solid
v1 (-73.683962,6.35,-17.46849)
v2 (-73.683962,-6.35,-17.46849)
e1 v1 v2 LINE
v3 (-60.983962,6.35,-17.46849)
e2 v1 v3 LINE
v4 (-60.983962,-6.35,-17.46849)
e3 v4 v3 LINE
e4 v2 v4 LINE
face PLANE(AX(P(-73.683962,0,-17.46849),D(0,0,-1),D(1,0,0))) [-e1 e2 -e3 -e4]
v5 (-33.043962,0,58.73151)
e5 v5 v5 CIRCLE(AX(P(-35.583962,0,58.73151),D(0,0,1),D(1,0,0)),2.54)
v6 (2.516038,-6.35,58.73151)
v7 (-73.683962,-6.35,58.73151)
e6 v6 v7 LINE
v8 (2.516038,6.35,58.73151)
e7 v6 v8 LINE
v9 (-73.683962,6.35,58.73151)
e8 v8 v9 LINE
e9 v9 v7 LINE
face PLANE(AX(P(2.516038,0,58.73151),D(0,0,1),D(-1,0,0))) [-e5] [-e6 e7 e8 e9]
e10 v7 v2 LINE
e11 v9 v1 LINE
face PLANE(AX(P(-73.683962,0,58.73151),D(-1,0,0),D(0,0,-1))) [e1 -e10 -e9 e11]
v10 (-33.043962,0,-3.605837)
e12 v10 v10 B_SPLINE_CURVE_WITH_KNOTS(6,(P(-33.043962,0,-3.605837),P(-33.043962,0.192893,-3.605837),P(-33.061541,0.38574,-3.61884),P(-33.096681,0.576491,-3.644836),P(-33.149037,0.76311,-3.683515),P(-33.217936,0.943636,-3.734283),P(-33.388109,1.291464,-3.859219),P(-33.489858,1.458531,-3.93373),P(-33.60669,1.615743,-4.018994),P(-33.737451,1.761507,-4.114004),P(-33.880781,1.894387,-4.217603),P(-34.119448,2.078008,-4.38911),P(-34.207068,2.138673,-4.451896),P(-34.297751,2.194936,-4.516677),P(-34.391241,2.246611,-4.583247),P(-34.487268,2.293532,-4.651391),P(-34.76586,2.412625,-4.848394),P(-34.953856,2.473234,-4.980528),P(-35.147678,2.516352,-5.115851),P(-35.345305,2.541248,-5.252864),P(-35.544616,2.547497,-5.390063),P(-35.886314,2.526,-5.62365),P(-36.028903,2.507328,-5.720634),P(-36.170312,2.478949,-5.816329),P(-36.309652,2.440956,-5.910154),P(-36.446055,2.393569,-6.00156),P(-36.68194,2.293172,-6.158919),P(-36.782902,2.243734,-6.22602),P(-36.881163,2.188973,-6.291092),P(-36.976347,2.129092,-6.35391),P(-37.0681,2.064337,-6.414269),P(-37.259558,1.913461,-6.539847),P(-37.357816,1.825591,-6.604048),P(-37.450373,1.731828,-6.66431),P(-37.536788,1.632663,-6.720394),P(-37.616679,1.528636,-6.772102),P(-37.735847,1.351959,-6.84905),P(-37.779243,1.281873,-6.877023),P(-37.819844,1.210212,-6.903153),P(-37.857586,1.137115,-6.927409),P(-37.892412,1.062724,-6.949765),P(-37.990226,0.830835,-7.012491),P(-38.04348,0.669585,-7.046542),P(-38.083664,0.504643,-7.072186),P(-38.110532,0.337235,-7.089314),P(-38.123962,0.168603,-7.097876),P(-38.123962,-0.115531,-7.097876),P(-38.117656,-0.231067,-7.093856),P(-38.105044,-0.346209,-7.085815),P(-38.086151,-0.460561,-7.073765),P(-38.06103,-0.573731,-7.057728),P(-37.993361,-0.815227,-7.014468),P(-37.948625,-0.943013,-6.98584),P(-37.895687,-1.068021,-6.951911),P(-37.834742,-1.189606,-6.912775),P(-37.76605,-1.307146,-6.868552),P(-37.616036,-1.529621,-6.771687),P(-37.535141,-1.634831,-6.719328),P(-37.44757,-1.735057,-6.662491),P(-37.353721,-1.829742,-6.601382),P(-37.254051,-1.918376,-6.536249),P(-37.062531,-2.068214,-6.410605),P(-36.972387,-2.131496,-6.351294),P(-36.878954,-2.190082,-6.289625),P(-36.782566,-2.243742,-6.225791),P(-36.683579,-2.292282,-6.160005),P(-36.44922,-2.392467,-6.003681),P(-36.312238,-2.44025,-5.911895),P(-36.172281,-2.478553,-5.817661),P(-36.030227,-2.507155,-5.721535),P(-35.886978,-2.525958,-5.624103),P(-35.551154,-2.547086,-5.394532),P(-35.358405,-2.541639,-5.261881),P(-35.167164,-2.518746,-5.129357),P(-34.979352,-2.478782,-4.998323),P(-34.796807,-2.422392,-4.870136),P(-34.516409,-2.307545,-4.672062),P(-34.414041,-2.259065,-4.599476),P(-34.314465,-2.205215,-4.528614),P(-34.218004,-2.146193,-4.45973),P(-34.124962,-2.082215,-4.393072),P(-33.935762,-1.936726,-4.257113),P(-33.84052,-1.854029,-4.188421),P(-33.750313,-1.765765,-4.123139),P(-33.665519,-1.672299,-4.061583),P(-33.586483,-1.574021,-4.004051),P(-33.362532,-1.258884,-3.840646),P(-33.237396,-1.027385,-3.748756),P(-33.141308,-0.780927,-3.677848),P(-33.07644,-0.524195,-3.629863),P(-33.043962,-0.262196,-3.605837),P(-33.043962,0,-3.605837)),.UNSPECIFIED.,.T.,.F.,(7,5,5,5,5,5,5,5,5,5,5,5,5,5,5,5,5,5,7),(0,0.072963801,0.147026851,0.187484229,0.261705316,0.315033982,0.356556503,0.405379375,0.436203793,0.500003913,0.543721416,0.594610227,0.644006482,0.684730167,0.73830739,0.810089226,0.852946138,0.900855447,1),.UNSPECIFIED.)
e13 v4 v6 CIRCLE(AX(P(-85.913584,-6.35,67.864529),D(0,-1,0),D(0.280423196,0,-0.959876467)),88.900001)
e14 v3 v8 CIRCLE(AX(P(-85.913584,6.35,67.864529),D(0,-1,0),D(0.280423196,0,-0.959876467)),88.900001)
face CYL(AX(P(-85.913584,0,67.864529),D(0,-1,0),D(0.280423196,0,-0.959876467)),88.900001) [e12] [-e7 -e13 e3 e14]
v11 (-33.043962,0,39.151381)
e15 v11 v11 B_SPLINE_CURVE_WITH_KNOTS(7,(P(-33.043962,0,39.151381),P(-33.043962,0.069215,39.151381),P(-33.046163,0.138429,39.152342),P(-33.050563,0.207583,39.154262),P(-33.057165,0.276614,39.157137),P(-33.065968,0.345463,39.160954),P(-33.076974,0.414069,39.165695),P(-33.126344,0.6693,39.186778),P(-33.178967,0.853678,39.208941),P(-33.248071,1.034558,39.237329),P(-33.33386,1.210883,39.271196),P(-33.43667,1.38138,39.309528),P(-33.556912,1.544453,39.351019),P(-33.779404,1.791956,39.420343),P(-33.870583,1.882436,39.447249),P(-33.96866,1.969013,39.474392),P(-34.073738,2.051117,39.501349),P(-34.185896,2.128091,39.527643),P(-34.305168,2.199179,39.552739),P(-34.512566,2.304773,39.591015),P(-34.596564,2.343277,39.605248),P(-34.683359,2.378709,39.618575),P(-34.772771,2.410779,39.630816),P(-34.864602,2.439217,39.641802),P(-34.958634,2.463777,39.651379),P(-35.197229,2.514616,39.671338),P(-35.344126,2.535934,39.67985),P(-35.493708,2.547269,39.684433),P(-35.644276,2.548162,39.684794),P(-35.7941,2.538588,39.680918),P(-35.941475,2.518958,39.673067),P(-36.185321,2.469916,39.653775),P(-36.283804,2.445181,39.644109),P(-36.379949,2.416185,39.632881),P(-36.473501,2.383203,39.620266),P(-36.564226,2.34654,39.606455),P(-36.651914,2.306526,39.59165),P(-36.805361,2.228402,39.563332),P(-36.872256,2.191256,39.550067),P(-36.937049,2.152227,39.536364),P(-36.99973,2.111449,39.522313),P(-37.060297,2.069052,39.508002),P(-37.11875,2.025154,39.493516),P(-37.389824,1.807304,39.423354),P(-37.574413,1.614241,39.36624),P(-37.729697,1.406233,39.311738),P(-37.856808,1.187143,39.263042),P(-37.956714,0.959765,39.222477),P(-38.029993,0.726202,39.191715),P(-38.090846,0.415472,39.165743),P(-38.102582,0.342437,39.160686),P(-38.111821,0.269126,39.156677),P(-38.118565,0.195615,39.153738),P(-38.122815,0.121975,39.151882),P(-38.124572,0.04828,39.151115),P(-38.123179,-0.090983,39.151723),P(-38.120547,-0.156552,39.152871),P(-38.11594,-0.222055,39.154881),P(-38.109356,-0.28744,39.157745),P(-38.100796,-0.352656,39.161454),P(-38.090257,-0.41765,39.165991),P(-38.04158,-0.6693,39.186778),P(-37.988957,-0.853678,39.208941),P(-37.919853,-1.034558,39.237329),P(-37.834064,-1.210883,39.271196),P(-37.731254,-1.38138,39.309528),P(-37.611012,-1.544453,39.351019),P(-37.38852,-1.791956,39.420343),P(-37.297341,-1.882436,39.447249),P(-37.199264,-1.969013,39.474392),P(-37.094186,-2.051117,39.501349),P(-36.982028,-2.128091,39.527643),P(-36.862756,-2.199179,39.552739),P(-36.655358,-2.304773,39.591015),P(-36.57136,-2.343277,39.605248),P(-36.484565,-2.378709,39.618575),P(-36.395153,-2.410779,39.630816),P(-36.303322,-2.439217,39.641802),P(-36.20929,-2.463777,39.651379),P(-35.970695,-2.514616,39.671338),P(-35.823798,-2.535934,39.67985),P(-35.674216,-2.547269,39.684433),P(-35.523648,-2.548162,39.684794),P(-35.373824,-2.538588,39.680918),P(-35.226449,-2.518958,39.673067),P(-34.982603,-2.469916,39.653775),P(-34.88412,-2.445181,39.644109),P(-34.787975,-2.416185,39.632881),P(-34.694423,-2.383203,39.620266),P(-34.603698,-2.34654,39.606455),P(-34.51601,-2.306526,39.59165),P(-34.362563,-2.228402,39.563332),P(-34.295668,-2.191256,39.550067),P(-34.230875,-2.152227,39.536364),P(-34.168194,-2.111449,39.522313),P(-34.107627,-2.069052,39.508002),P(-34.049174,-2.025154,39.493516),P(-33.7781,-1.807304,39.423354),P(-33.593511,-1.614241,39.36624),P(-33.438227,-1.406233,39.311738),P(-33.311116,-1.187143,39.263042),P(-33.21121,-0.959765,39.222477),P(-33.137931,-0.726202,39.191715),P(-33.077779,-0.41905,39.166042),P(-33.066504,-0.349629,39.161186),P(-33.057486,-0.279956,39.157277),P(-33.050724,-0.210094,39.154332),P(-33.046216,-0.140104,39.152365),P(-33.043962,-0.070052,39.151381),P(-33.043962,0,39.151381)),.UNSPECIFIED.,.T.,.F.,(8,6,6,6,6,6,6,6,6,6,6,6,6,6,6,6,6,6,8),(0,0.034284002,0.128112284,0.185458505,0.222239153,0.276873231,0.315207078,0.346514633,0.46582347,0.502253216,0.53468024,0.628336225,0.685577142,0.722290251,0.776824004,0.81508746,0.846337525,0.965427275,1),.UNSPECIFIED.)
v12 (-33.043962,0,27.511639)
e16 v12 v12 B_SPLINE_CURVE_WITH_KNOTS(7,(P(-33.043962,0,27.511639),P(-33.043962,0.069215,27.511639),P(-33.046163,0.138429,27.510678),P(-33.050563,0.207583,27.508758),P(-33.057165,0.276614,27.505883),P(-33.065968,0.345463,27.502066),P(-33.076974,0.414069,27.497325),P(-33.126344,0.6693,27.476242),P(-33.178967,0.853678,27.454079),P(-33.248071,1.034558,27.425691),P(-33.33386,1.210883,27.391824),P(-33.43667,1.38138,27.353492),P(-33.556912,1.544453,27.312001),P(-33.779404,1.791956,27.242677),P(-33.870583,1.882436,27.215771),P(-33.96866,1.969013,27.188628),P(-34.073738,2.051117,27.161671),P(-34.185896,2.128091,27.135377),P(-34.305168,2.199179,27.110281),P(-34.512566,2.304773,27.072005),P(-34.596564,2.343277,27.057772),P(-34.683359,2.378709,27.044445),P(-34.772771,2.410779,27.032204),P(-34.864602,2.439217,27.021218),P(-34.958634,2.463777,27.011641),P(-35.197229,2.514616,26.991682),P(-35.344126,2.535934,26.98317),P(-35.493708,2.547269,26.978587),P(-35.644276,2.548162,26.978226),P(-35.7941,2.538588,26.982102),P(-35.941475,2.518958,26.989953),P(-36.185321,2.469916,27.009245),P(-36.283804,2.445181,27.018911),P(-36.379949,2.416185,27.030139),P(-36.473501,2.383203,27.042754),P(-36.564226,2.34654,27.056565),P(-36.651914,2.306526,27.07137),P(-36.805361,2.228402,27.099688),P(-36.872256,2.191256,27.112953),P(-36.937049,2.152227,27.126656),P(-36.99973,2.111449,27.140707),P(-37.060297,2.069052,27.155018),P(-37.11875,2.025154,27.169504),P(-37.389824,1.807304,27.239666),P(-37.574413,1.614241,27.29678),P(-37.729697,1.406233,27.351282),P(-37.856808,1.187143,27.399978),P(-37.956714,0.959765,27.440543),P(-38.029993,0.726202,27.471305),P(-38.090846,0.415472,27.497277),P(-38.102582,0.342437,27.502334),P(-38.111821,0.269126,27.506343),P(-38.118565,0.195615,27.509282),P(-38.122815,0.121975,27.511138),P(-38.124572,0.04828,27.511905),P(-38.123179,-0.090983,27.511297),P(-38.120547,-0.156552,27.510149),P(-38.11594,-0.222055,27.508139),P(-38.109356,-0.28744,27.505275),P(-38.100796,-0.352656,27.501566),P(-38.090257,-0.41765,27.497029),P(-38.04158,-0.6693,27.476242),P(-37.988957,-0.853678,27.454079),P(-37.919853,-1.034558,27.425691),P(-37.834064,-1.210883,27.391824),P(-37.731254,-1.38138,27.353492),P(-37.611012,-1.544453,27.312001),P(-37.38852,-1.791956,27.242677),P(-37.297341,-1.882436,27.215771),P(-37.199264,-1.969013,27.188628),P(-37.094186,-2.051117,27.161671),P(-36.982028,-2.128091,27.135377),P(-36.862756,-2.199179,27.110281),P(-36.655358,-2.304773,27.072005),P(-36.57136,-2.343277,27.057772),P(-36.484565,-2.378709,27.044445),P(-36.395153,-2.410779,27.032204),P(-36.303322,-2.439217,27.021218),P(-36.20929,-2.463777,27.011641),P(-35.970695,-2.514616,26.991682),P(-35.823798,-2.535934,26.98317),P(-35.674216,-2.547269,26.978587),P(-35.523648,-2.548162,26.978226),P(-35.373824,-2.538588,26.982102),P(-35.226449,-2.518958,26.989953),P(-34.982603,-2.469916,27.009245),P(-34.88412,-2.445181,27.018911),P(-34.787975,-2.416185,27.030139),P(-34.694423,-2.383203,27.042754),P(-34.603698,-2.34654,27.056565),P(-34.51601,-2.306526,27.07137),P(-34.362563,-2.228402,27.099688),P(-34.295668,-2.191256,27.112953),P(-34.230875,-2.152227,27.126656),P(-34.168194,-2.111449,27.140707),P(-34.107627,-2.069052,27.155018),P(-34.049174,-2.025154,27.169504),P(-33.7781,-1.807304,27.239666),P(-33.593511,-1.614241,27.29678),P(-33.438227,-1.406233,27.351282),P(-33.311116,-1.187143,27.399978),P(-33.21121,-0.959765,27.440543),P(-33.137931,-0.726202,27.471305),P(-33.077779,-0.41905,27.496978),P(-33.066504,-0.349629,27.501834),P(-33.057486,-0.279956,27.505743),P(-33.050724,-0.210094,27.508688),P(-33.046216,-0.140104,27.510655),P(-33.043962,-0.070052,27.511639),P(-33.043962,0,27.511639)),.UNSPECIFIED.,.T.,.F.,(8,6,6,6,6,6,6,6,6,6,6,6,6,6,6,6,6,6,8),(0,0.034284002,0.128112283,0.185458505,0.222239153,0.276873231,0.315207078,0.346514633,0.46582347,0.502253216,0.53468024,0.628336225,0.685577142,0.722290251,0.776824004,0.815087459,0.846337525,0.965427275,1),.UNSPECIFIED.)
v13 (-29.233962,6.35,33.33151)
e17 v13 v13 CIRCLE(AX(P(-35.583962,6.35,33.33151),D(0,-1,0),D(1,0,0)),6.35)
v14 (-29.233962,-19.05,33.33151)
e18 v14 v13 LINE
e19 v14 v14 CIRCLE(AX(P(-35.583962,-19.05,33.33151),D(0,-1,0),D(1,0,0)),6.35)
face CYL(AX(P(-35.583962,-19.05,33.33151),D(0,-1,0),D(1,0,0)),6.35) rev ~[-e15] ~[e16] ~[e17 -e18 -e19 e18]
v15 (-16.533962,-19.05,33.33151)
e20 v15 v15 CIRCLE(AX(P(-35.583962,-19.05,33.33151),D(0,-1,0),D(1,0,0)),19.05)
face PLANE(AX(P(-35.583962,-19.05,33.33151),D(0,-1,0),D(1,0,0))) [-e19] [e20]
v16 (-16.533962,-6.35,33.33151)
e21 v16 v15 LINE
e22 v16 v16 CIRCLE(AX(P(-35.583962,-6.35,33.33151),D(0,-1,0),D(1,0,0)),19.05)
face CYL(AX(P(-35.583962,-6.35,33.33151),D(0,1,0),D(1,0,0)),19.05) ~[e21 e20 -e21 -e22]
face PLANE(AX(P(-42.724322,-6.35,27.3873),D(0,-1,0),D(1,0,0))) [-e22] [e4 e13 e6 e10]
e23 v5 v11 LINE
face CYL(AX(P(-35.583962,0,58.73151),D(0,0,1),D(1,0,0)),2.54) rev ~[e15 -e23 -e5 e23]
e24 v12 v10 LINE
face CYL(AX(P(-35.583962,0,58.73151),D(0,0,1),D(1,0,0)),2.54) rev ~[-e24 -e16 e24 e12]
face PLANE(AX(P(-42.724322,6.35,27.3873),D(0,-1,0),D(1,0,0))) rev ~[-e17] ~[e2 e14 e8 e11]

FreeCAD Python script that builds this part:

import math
import FreeCAD as App
import Part
import Sketcher

V = App.Vector
Q = App.Units.Quantity

doc = App.newDocument("Part")
body = doc.addObject("PartDesign::Body", "Body")

# Sketch on XZ plane
sketch1 = doc.addObject("Sketcher::SketchObject", "Sketch")
body.addObject(sketch1)
sketch1.AttachmentSupport = (doc.XZ_Plane, [""])
sketch1.MapMode = "FlatFace"
sketch1.addGeometry([
    Part.LineSegment(V(3, 59, 0), V(-74, 59, 0)),
    Part.LineSegment(V(-74, 59, 0), V(-74, -17, 0)),
    Part.LineSegment(V(-74, -17, 0), V(-61, -17, 0)),
    Part.ArcOfCircle(Part.Circle(V(-86, 68, 0), V(0, 0, 1), 89), math.radians(-74), math.radians(-6)),
], False)
sketch1.addConstraint([
    Sketcher.Constraint("Coincident", 0, 2, 1, 1),
    Sketcher.Constraint("Coincident", 1, 2, 2, 1),
    Sketcher.Constraint("Coincident", 2, 2, 3, 1),
    Sketcher.Constraint("Coincident", 3, 2, 0, 1),
    Sketcher.Constraint("Horizontal", 0),
    Sketcher.Constraint("Vertical", 1),
    Sketcher.Constraint("Horizontal", 2),
    Sketcher.Constraint("Equal", 0, 1),
    Sketcher.Constraint("Radius", 3, Q("3.5 in")),
    Sketcher.Constraint("DistanceX", 0, 2, 0, 1, Q("3 in")),
    Sketcher.Constraint("DistanceX", 2, 1, 2, 2, Q("0.5 in")),
    Sketcher.Constraint("DistanceY", -1, 1, 3, 3, 67.864529),
    Sketcher.Constraint("DistanceX", 0, 2, -1, 1, 73.683962),
])
pad1 = doc.addObject("PartDesign::Pad", "Pad")
body.addObject(pad1)
pad1.Profile = sketch1
pad1.Length = Q("0.5 in")
pad1.Midplane = True

# Sketch on XZ plane
sketch2 = doc.addObject("Sketcher::SketchObject", "Sketch001")
body.addObject(sketch2)
sketch2.AttachmentSupport = (doc.XZ_Plane, [""])
sketch2.MapMode = "FlatFace"
sketch2.AttachmentOffset = App.Placement(V(0, 0, 0.25 * 25.4), App.Rotation())
sketch2.addGeometry(Part.Circle(V(-36, 33, 0), V(0, 0, 1), 19), False)
sketch2.addConstraint([
    Sketcher.Constraint("Diameter", 0, Q("1.5 in")),
    Sketcher.Constraint("DistanceY", -1, 1, 0, 3, 33.33151),
    Sketcher.Constraint("DistanceX", 0, 3, -1, 1, 35.583962),
])
pad2 = doc.addObject("PartDesign::Pad", "Pad001")
body.addObject(pad2)
pad2.Profile = sketch2
pad2.Length = Q("0.5 in")

# Sketch on XZ plane
sketch3 = doc.addObject("Sketcher::SketchObject", "Sketch002")
body.addObject(sketch3)
sketch3.AttachmentSupport = (doc.XZ_Plane, [""])
sketch3.MapMode = "FlatFace"
sketch3.AttachmentOffset = App.Placement(V(0, 0, 0.75 * 25.4), App.Rotation())
sketch3.addGeometry(Part.Circle(V(-36, 33, 0), V(0, 0, 1), 6), False)
sketch3.addConstraint([
    Sketcher.Constraint("Diameter", 0, Q("0.5 in")),
    Sketcher.Constraint("DistanceY", -1, 1, 0, 3, 33.33151),
    Sketcher.Constraint("DistanceX", 0, 3, -1, 1, 35.583962),
])
pocket1 = doc.addObject("PartDesign::Pocket", "Pocket")
body.addObject(pocket1)
pocket1.Profile = sketch3
pocket1.Length = Q("2.93 in")

# Sketch on XY plane
sketch4 = doc.addObject("Sketcher::SketchObject", "Sketch003")
body.addObject(sketch4)
sketch4.AttachmentSupport = (doc.XY_Plane, [""])
sketch4.MapMode = "FlatFace"
sketch4.AttachmentOffset = App.Placement(V(0, 0, 58.73151), App.Rotation())
sketch4.addGeometry(Part.Circle(V(-35.6, 0, 0), V(0, 0, 1), 2.5), False)
sketch4.addConstraint([
    Sketcher.Constraint("PointOnObject", 0, 3, -1),
    Sketcher.Constraint("Diameter", 0, Q("0.2 in")),
    Sketcher.Constraint("DistanceX", 0, 3, -1, 1, 35.583962),
])
pocket2 = doc.addObject("PartDesign::Pocket", "Pocket001")
body.addObject(pocket2)
pocket2.Profile = sketch4
pocket2.Type = "ThroughAll"

doc.recompute()
